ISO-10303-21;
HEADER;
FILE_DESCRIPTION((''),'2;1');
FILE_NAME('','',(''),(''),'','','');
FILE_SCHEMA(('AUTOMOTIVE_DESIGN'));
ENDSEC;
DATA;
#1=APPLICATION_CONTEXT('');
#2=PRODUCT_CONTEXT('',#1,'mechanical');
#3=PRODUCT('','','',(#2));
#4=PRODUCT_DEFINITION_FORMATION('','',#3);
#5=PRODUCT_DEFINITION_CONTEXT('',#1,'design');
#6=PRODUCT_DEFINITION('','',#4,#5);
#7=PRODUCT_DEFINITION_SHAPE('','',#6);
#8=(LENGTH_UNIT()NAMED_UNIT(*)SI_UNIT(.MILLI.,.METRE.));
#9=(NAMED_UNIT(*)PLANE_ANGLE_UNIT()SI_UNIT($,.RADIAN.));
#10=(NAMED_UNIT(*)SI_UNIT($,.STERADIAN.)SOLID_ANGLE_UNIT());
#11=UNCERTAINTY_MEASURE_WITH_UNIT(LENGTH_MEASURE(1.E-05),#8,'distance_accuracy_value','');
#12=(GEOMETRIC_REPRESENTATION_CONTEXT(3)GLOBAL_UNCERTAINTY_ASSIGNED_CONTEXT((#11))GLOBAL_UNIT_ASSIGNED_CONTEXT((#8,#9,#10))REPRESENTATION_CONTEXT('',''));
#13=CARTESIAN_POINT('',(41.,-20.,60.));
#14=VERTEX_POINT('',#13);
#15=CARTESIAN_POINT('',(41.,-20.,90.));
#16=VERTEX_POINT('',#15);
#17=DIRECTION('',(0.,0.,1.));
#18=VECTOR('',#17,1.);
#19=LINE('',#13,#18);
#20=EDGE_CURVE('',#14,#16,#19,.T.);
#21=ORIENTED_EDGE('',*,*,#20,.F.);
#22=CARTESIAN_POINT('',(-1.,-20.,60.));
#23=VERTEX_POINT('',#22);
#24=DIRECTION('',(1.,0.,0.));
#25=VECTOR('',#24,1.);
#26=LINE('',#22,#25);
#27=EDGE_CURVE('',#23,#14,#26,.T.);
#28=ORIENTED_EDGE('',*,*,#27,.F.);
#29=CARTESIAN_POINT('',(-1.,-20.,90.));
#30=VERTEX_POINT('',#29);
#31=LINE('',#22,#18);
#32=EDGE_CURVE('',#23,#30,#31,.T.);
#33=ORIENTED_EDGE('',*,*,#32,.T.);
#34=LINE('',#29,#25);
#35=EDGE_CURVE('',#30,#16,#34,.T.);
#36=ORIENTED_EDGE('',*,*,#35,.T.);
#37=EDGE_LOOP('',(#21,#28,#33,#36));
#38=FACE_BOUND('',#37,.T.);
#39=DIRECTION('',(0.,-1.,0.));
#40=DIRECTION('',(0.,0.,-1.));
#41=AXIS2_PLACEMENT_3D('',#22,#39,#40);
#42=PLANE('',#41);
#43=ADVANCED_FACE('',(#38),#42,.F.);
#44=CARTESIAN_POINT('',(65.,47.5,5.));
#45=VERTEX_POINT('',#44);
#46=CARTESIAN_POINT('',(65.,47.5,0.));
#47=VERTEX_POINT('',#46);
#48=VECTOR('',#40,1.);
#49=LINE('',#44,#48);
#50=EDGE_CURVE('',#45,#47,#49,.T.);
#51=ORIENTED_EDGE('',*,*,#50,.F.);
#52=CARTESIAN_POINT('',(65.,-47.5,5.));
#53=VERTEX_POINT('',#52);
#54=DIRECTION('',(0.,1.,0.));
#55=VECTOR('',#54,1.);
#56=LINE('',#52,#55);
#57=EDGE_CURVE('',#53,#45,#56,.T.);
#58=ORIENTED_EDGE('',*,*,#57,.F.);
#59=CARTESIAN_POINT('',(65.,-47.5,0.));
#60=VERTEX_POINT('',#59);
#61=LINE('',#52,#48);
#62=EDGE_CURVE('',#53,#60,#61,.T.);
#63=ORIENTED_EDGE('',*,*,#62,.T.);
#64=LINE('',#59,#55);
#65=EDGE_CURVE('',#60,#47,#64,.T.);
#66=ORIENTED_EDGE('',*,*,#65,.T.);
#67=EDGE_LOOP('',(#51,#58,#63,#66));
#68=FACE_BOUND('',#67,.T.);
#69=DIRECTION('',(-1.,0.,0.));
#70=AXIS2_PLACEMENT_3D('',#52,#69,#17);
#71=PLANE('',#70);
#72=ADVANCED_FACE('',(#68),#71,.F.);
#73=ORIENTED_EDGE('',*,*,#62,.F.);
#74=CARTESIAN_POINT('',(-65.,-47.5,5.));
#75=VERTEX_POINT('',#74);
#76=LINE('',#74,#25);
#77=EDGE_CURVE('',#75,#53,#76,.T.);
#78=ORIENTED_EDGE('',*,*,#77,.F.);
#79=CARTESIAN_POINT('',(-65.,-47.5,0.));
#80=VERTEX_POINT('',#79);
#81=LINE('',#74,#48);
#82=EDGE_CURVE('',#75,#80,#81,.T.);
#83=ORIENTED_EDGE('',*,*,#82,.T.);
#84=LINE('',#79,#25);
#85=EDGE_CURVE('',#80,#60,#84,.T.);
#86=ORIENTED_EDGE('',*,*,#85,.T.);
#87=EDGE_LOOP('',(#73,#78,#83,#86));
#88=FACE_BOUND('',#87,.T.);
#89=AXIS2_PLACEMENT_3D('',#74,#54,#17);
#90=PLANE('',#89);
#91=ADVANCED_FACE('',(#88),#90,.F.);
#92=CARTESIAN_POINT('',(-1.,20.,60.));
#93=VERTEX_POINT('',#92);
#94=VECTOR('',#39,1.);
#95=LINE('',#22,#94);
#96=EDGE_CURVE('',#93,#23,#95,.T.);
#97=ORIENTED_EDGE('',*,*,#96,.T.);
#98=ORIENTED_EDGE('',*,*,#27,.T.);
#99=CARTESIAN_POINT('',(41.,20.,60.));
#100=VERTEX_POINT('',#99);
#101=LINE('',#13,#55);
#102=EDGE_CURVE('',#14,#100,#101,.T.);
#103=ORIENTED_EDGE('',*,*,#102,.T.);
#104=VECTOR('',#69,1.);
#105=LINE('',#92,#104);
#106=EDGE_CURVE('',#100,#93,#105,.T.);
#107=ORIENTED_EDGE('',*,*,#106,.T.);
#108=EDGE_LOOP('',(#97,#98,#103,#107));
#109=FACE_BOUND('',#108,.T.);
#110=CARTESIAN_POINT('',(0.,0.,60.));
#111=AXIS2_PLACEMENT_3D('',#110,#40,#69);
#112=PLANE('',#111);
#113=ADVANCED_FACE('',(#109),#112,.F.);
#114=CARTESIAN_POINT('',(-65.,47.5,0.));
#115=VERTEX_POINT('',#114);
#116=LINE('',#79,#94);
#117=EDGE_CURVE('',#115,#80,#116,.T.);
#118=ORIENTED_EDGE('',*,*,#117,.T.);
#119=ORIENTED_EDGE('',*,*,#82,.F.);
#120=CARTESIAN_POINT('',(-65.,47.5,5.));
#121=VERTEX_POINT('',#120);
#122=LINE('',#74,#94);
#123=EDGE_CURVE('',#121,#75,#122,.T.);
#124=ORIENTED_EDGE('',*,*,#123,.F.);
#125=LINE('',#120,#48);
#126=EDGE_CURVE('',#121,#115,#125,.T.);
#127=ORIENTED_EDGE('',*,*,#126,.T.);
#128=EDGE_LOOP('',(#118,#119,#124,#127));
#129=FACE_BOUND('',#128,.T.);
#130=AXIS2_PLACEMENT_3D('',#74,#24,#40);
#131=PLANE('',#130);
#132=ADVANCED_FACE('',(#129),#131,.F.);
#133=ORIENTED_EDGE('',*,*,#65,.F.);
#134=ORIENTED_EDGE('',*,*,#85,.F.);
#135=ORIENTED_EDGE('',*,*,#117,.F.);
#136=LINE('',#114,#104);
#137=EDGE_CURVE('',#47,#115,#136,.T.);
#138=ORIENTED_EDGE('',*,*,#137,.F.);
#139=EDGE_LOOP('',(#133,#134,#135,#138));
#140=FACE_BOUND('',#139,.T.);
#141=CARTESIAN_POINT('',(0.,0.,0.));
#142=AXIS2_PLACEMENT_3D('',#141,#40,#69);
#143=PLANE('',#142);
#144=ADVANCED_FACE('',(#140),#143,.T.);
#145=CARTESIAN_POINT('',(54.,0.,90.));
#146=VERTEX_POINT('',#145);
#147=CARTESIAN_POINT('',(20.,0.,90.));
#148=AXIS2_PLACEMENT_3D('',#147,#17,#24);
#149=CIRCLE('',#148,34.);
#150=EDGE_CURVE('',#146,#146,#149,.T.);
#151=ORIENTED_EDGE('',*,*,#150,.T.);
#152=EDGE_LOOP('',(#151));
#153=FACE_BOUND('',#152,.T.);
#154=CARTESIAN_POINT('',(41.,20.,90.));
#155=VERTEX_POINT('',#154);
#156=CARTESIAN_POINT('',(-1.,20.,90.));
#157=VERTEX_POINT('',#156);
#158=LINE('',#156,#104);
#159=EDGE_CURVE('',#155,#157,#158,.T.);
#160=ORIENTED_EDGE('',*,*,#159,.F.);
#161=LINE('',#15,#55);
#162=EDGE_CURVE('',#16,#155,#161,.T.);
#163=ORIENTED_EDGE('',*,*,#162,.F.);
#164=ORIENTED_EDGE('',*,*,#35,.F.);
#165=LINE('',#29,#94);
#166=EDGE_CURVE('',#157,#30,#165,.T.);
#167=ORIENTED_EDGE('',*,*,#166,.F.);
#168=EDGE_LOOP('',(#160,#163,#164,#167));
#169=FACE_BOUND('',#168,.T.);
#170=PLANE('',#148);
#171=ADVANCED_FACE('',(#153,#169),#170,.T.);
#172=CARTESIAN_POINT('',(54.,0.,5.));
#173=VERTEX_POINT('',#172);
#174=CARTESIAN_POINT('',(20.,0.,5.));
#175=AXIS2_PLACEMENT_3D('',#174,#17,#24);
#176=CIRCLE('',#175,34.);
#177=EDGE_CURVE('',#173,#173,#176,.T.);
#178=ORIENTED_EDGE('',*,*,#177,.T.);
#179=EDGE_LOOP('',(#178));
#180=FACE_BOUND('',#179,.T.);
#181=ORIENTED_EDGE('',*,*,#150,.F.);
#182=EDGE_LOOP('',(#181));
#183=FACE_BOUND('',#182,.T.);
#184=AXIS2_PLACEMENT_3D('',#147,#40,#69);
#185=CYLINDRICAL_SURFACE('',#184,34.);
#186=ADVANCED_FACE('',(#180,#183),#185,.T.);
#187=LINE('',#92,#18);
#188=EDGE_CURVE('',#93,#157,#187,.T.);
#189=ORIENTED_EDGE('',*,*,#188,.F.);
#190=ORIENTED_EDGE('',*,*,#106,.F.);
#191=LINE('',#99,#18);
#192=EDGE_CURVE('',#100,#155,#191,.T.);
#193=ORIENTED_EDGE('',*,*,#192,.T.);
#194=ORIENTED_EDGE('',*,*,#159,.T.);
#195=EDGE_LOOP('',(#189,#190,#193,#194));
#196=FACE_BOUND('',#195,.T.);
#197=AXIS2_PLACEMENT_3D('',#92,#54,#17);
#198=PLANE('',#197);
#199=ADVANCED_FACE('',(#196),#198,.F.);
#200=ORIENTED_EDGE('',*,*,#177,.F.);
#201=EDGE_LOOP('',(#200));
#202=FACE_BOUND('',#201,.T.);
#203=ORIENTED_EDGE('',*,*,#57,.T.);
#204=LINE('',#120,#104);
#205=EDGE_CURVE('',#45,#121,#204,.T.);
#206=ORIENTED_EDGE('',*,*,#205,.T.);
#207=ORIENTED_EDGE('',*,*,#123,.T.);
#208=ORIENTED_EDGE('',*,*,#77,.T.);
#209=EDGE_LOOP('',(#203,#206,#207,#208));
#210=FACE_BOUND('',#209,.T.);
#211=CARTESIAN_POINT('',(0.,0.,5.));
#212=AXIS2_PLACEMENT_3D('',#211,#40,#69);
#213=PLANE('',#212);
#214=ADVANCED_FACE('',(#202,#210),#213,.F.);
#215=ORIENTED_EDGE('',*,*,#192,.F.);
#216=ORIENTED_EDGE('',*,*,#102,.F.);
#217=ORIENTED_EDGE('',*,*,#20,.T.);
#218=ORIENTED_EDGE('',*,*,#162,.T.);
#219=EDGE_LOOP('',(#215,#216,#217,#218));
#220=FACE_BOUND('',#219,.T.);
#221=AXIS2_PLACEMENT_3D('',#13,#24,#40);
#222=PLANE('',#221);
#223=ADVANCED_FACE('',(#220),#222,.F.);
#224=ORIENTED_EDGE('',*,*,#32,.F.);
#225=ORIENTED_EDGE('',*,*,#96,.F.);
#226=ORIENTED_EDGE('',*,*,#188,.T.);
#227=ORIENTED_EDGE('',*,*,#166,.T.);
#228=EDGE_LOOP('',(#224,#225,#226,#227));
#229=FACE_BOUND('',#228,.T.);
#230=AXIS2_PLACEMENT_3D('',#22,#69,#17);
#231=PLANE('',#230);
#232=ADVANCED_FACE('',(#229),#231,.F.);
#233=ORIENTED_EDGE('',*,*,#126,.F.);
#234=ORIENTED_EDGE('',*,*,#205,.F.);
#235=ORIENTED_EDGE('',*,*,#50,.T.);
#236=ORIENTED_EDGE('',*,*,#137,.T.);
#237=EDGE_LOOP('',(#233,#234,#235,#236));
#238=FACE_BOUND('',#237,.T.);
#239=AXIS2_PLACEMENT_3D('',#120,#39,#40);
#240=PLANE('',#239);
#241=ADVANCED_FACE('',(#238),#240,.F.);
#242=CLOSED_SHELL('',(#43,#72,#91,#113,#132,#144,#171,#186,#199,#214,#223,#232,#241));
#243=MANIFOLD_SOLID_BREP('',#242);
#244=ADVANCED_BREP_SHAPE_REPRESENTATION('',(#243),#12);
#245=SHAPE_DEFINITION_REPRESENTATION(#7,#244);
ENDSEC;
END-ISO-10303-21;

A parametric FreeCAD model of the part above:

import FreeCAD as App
import Part
import Sketcher

doc = App.newDocument("Part")
body = doc.addObject("PartDesign::Body", "Body")

sketch1 = body.newObject("Sketcher::SketchObject", "Sketch")
sketch1.AttachmentSupport = (doc.getObject("XY_Plane"), [""])
sketch1.MapMode = "FlatFace"
sketch1.addGeometry(Part.LineSegment(App.Vector(-65, 48, 0), App.Vector(-65, -48, 0)), False)
sketch1.addGeometry(Part.LineSegment(App.Vector(-65, -48, 0), App.Vector(65, -48, 0)), False)
sketch1.addGeometry(Part.LineSegment(App.Vector(65, -48, 0), App.Vector(65, 48, 0)), False)
sketch1.addGeometry(Part.LineSegment(App.Vector(65, 48, 0), App.Vector(-65, 48, 0)), False)
sketch1.addConstraint(Sketcher.Constraint("Coincident", 0, 2, 1, 1))
sketch1.addConstraint(Sketcher.Constraint("Coincident", 1, 2, 2, 1))
sketch1.addConstraint(Sketcher.Constraint("Coincident", 2, 2, 3, 1))
sketch1.addConstraint(Sketcher.Constraint("Coincident", 3, 2, 0, 1))
sketch1.addConstraint(Sketcher.Constraint("Vertical", 0))
sketch1.addConstraint(Sketcher.Constraint("Horizontal", 1))
sketch1.addConstraint(Sketcher.Constraint("Vertical", 2))
sketch1.addConstraint(Sketcher.Constraint("Horizontal", 3))
sketch1.addConstraint(Sketcher.Constraint("Symmetric", 0, 2, 2, 2, -1, 1))
sketch1.addConstraint(Sketcher.Constraint("DistanceX", 1, 1, 1, 2, 130.0))
sketch1.addConstraint(Sketcher.Constraint("DistanceY", 0, 2, 0, 1, 95.0))
pad1 = body.newObject("PartDesign::Pad", "Pad")
pad1.Profile = sketch1
pad1.Length = 5

sketch2 = body.newObject("Sketcher::SketchObject", "Sketch001")
sketch2.AttachmentSupport = (doc.getObject("XY_Plane"), [""])
sketch2.MapMode = "FlatFace"
sketch2.AttachmentOffset = App.Placement(App.Vector(0, 0, 5), App.Rotation())
sketch2.addGeometry(Part.Circle(App.Vector(20, 0, 0), App.Vector(0, 0, 1), 34), False)
sketch2.addConstraint(Sketcher.Constraint("PointOnObject", 0, 3, -1))
sketch2.addConstraint(Sketcher.Constraint("Diameter", 0, 68.0))
sketch2.addConstraint(Sketcher.Constraint("DistanceX", -1, 1, 0, 3, 20.0))
pad2 = body.newObject("PartDesign::Pad", "Pad001")
pad2.Profile = sketch2
pad2.Length = 85

sketch3 = body.newObject("Sketcher::SketchObject", "Sketch002")
sketch3.AttachmentSupport = (doc.getObject("XY_Plane"), [""])
sketch3.MapMode = "FlatFace"
sketch3.AttachmentOffset = App.Placement(App.Vector(0, 0, 90), App.Rotation())
sketch3.addGeometry(Part.LineSegment(App.Vector(-1, 20, 0), App.Vector(-1, -20, 0)), False)
sketch3.addGeometry(Part.LineSegment(App.Vector(-1, -20, 0), App.Vector(41, -20, 0)), False)
sketch3.addGeometry(Part.LineSegment(App.Vector(41, -20, 0), App.Vector(41, 20, 0)), False)
sketch3.addGeometry(Part.LineSegment(App.Vector(41, 20, 0), App.Vector(-1, 20, 0)), False)
sketch3.addConstraint(Sketcher.Constraint("Coincident", 0, 2, 1, 1))
sketch3.addConstraint(Sketcher.Constraint("Coincident", 1, 2, 2, 1))
sketch3.addConstraint(Sketcher.Constraint("Coincident", 2, 2, 3, 1))
sketch3.addConstraint(Sketcher.Constraint("Coincident", 3, 2, 0, 1))
sketch3.addConstraint(Sketcher.Constraint("Vertical", 0))
sketch3.addConstraint(Sketcher.Constraint("Horizontal", 1))
sketch3.addConstraint(Sketcher.Constraint("Vertical", 2))
sketch3.addConstraint(Sketcher.Constraint("Horizontal", 3))
sketch3.addConstraint(Sketcher.Constraint("DistanceX", 1, 1, 1, 2, 42.0))
sketch3.addConstraint(Sketcher.Constraint("DistanceY", 0, 2, 0, 1, 40.0))
sketch3.addConstraint(Sketcher.Constraint("DistanceX", 0, 2, -1, 1, 1.0))
sketch3.addConstraint(Sketcher.Constraint("DistanceY", 0, 2, -1, 1, 20.0))
pocket1 = body.newObject("PartDesign::Pocket", "Pocket")
pocket1.Profile = sketch3
pocket1.Length = 30

doc.recompute()
